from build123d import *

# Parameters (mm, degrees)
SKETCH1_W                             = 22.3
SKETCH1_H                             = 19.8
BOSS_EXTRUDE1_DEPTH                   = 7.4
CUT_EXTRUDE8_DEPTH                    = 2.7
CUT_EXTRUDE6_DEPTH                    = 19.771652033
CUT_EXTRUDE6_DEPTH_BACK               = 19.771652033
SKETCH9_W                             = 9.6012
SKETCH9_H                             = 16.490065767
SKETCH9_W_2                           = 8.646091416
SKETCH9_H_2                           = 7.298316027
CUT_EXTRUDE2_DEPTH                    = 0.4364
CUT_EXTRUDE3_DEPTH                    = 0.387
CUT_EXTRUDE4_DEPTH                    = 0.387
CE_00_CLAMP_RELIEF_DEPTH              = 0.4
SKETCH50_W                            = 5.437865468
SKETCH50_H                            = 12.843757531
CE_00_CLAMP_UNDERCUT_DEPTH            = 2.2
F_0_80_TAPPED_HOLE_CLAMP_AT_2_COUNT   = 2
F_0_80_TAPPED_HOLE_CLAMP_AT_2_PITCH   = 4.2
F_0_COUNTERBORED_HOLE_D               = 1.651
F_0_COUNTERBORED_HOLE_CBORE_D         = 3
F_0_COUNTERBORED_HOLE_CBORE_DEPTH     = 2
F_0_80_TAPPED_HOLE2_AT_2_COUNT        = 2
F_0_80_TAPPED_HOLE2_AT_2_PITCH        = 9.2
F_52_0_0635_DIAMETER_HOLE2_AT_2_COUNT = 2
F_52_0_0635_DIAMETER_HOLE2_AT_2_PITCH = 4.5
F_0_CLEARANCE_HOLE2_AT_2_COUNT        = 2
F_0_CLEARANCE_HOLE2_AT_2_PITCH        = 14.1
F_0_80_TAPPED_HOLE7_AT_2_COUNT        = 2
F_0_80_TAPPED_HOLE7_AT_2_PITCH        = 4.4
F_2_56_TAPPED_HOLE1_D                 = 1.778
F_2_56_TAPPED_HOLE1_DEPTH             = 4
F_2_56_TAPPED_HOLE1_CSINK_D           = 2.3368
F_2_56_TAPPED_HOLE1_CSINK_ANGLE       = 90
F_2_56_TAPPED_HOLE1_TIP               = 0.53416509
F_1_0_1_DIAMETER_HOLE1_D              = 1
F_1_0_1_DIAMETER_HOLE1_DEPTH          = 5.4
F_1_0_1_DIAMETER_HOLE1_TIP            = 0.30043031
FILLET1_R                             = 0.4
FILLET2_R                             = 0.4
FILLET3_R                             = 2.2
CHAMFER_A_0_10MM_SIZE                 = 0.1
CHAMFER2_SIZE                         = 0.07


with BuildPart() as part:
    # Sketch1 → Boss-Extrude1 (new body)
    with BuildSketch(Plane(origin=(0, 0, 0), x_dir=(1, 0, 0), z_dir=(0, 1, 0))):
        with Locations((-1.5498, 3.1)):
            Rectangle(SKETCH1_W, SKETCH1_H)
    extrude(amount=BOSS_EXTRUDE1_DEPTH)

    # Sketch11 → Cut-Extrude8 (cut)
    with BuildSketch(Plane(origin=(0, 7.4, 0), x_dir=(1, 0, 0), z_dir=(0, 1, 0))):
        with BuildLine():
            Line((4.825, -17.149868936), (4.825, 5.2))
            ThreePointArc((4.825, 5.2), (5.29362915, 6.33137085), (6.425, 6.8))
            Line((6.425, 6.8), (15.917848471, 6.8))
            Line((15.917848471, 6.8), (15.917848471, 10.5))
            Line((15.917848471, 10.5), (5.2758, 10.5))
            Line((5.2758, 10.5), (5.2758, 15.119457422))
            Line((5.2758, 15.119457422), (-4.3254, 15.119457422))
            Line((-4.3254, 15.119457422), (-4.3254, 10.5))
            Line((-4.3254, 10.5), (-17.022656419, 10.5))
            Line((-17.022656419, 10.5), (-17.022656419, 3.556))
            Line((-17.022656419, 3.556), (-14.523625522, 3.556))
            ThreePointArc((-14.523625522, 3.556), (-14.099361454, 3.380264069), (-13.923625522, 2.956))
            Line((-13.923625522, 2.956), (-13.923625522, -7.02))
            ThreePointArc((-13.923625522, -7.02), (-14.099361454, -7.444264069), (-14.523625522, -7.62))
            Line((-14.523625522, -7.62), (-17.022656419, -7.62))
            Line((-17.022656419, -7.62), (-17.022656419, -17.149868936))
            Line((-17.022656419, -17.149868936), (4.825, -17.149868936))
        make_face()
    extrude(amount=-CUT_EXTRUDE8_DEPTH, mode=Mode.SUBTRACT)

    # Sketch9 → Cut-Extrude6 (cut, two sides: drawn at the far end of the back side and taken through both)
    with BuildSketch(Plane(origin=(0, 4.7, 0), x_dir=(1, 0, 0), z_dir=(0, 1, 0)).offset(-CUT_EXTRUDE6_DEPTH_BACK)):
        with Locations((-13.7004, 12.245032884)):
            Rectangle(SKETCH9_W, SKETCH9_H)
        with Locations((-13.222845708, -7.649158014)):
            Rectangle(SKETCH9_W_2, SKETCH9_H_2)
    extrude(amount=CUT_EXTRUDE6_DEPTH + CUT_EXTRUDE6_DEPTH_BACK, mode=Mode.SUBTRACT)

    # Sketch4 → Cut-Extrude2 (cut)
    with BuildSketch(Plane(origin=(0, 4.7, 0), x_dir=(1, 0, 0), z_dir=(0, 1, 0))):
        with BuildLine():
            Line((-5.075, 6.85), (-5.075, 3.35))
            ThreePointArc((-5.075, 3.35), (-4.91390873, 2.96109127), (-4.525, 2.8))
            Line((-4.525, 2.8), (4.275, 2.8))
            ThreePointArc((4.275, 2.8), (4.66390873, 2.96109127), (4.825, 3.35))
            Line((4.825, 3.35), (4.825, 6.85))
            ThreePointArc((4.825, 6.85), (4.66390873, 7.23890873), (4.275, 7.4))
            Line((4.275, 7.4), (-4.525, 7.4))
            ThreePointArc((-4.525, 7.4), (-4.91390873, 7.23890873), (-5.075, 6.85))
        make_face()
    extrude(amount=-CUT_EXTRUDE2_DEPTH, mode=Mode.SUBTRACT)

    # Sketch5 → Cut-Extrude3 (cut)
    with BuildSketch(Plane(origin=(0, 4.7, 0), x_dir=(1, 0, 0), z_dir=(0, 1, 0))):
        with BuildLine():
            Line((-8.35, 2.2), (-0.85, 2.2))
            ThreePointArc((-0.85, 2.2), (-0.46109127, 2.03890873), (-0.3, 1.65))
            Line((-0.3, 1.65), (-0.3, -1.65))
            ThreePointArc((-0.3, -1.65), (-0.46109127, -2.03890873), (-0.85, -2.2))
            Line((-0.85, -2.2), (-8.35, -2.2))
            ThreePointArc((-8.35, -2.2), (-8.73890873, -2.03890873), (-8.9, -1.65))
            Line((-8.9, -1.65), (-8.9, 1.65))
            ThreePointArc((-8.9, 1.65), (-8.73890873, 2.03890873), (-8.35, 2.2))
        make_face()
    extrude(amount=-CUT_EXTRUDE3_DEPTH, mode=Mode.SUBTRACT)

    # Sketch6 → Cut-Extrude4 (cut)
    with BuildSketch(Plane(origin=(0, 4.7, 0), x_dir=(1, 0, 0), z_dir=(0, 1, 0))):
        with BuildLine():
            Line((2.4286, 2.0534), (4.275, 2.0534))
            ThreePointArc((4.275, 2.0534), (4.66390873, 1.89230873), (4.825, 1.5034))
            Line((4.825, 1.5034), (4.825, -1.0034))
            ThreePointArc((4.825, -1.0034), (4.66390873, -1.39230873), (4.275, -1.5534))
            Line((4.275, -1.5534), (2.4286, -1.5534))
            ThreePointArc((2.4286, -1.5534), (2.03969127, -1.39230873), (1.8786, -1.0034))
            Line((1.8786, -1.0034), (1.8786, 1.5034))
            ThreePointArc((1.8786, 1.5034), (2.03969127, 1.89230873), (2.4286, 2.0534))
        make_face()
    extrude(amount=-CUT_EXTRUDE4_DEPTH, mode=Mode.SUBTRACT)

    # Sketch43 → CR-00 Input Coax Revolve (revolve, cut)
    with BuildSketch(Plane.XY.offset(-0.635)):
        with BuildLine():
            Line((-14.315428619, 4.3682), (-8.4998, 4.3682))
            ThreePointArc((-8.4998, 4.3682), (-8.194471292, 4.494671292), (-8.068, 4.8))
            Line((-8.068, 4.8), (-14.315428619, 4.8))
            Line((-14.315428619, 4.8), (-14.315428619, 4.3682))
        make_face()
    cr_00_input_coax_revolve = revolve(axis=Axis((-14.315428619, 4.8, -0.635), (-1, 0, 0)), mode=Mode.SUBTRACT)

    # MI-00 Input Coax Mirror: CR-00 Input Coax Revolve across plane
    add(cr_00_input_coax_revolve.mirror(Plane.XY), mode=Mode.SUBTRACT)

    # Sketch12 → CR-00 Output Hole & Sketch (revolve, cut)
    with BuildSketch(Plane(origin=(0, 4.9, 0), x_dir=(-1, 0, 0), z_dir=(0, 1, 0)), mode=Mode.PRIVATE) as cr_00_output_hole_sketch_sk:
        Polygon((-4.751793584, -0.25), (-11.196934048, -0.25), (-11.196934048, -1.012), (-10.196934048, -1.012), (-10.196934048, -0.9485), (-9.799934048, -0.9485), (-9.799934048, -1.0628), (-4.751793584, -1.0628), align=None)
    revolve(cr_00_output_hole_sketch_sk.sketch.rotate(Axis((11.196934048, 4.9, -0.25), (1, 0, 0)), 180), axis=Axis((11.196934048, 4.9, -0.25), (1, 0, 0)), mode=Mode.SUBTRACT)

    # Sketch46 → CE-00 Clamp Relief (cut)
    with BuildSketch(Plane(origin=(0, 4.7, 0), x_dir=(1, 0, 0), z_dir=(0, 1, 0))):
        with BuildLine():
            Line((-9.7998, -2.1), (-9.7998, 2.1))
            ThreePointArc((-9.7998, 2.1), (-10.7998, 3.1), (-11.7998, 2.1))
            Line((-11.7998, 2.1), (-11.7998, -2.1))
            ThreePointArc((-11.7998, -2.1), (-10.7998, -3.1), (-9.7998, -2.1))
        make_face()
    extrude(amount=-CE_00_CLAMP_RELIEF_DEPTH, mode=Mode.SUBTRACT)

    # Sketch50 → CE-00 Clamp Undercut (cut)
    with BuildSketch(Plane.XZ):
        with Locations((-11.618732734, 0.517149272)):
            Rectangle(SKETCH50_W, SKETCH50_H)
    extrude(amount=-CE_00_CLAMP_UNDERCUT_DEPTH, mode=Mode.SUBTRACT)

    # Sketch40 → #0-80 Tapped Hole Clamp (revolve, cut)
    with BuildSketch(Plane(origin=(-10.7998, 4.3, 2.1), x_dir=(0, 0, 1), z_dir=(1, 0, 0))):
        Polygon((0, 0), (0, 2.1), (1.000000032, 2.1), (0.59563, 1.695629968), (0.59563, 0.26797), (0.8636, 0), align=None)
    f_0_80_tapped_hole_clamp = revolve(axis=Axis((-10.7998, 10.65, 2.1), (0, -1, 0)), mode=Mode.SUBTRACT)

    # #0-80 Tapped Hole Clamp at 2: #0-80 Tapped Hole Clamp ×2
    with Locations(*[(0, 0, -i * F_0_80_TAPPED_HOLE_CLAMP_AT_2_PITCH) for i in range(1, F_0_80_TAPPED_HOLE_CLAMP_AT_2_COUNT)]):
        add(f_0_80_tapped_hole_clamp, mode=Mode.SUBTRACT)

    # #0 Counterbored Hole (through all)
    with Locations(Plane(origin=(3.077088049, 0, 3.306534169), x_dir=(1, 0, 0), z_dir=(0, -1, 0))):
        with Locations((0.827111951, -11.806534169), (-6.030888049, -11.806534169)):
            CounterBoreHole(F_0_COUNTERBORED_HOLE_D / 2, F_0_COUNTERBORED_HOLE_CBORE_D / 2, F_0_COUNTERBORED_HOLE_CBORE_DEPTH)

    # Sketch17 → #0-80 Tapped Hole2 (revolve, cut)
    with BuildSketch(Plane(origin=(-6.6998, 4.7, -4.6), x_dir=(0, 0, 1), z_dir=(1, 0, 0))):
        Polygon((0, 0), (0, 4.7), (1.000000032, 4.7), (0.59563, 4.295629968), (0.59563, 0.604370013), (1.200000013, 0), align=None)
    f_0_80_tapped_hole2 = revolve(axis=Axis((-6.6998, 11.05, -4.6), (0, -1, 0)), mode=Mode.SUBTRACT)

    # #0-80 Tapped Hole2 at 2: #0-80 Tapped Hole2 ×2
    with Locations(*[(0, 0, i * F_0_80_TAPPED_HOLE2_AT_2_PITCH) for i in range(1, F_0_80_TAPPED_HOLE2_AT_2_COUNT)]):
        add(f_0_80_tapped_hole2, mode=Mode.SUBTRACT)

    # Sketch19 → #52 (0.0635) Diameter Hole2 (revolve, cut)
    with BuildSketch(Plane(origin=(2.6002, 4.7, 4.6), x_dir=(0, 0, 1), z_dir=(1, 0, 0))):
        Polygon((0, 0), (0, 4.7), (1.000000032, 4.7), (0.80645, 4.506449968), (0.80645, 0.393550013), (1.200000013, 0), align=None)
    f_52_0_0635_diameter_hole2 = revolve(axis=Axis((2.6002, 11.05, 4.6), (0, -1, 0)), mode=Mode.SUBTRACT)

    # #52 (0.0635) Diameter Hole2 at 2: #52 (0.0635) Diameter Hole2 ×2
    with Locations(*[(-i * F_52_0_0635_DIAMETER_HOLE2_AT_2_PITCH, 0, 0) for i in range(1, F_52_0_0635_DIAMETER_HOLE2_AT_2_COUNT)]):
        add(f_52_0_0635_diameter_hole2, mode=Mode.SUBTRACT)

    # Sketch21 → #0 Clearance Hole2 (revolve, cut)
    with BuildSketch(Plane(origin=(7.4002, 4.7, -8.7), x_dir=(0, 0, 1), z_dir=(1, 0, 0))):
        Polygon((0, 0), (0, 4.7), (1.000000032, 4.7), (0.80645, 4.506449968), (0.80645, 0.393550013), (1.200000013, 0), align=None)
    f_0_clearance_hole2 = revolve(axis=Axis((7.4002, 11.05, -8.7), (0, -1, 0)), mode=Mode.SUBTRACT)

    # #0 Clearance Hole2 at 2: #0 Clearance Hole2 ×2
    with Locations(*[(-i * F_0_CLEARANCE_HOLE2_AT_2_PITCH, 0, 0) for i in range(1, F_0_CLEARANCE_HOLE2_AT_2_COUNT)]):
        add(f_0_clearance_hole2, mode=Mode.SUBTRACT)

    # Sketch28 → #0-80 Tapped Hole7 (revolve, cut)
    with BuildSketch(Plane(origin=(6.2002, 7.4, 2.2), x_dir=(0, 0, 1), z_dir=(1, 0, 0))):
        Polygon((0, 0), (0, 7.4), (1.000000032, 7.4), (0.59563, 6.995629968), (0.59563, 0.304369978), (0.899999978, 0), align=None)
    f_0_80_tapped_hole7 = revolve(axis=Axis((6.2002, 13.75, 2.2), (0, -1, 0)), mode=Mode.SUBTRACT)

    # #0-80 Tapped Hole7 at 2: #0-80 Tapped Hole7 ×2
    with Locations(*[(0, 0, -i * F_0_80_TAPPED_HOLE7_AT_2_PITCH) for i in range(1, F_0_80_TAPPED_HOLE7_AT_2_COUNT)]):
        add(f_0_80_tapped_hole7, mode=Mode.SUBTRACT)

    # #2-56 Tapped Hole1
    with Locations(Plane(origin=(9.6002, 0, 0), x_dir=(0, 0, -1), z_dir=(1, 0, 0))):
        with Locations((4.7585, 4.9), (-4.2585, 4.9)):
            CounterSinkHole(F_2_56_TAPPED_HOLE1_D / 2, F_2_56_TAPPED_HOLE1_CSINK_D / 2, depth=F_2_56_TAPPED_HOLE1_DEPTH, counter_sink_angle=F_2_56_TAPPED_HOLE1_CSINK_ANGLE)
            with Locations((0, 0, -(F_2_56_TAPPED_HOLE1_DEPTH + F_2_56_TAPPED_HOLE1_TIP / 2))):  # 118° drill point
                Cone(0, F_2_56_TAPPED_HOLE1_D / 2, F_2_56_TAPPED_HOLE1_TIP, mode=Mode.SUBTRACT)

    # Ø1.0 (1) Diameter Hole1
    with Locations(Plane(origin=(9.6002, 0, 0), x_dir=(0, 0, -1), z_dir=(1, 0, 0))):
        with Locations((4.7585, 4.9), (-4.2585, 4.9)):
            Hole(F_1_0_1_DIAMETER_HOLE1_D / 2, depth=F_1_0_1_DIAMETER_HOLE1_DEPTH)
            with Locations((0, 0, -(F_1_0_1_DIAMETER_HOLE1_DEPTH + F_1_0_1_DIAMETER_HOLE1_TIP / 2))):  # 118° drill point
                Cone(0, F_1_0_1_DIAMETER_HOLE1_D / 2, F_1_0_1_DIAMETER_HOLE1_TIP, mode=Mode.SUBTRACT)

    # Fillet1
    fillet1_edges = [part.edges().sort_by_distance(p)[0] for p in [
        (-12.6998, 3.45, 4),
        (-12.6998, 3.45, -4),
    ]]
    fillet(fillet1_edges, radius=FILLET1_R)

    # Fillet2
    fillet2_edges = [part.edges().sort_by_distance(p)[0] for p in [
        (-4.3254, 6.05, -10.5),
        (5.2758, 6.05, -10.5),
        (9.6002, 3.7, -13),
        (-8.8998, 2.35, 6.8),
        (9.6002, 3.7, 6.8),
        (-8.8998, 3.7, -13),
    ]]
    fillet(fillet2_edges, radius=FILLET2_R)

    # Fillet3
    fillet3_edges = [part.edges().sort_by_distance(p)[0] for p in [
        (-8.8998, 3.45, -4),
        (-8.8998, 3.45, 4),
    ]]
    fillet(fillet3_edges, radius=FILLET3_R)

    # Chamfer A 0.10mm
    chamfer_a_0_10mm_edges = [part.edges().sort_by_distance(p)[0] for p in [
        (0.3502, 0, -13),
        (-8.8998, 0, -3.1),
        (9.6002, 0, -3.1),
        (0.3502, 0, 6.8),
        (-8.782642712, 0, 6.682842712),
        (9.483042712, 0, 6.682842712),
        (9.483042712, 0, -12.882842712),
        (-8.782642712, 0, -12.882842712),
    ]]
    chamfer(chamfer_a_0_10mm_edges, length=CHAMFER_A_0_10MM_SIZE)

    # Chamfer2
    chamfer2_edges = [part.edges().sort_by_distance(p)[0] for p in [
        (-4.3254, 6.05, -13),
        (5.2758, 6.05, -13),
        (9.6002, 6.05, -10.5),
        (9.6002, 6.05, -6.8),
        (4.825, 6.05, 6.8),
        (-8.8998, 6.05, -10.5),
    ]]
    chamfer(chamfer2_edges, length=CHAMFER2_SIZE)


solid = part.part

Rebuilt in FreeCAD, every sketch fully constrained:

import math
import FreeCAD as App
import Part
import Sketcher
from FreeCAD import Vector
Q = App.Units.Quantity


def edges_at(feature, points):
    """Names of the edges that pass closest to the given points."""
    edges = feature.Shape.Edges
    near = lambda p: min(range(len(edges)), key=lambda i: edges[i].distToShape(Part.Vertex(*p))[0])
    return sorted({f"Edge{near(p) + 1}" for p in points})


def add_polygon(sketch, points):
    """Adds a closed chain of lines whose ends are joined by coincident constraints."""
    first, n = sketch.GeometryCount, len(points)
    for a, b in zip(points, points[1:] + points[:1]):
        sketch.addGeometry(Part.LineSegment(App.Vector(*a, 0), App.Vector(*b, 0)), False)
    for i in range(n):
        sketch.addConstraint(Sketcher.Constraint("Coincident", first + i, 2, first + (i + 1) % n, 1))

doc = App.newDocument("Part")
body = doc.addObject("PartDesign::Body", "Body")

sketch1 = doc.addObject("Sketcher::SketchObject", "Sketch")
body.addObject(sketch1)
sketch1.AttachmentSupport = (doc.XZ_Plane, [""])
sketch1.MapMode = "FlatFace"
add_polygon(sketch1, [(-12.6998, -13), (-12.6998, 6.8), (9.6002, 6.8), (9.6002, -13)])
sketch1.addConstraint(Sketcher.Constraint("Vertical", 0))
sketch1.addConstraint(Sketcher.Constraint("Horizontal", 1))
sketch1.addConstraint(Sketcher.Constraint("Vertical", 2))
sketch1.addConstraint(Sketcher.Constraint("Horizontal", 3))
sketch1.addConstraint(Sketcher.Constraint("DistanceX", 1, 1, 1, 2, Q("22.3 mm")))
sketch1.addConstraint(Sketcher.Constraint("DistanceY", 0, 1, 0, 2, Q("19.8 mm")))
sketch1.addConstraint(Sketcher.Constraint("DistanceY", 2, 2, -1, 1, Q("13 mm")))
sketch1.addConstraint(Sketcher.Constraint("DistanceX", 0, 2, -1, 1, Q("12.6998 mm")))
pad1 = doc.addObject("PartDesign::Pad", "Pad")
body.addObject(pad1)
pad1.Profile = sketch1
pad1.Length = 7.4
pad1.Reversed = True

sketch2 = doc.addObject("Sketcher::SketchObject", "Sketch001")
body.addObject(sketch2)
sketch2.AttachmentSupport = (doc.XZ_Plane, [""])
sketch2.MapMode = "FlatFace"
sketch2.AttachmentOffset = App.Placement(Vector(0, 0, -7.4), App.Rotation())
sketch2.addGeometry(Part.LineSegment(Vector(4.825, 17.149869, 0), Vector(4.825, -5.2, 0)), False)
sketch2.addGeometry(Part.ArcOfCircle(Part.Circle(Vector(6.425, -5.2, 0), Vector(0, 0, 1), 1.6), math.radians(180), math.radians(270)), False)
sketch2.addGeometry(Part.LineSegment(Vector(6.425, -6.8, 0), Vector(15.917848, -6.8, 0)), False)
sketch2.addGeometry(Part.LineSegment(Vector(15.917848, -6.8, 0), Vector(15.917848, -10.5, 0)), False)
sketch2.addGeometry(Part.LineSegment(Vector(15.917848, -10.5, 0), Vector(5.2758, -10.5, 0)), False)
sketch2.addGeometry(Part.LineSegment(Vector(5.2758, -10.5, 0), Vector(5.2758, -15.119457, 0)), False)
sketch2.addGeometry(Part.LineSegment(Vector(5.2758, -15.119457, 0), Vector(-4.3254, -15.119457, 0)), False)
sketch2.addGeometry(Part.LineSegment(Vector(-4.3254, -15.119457, 0), Vector(-4.3254, -10.5, 0)), False)
sketch2.addGeometry(Part.LineSegment(Vector(-4.3254, -10.5, 0), Vector(-17.022656, -10.5, 0)), False)
sketch2.addGeometry(Part.LineSegment(Vector(-17.022656, -10.5, 0), Vector(-17.022656, -3.556, 0)), False)
sketch2.addGeometry(Part.LineSegment(Vector(-17.022656, -3.556, 0), Vector(-14.523626, -3.556, 0)), False)
sketch2.addGeometry(Part.ArcOfCircle(Part.Circle(Vector(-14.523626, -2.956, 0), Vector(0, 0, 1), 0.6), math.radians(-90), math.radians(0)), False)
sketch2.addGeometry(Part.LineSegment(Vector(-13.923626, -2.956, 0), Vector(-13.923626, 7.02, 0)), False)
sketch2.addGeometry(Part.ArcOfCircle(Part.Circle(Vector(-14.523626, 7.02, 0), Vector(0, 0, 1), 0.6), math.radians(0), math.radians(90)), False)
sketch2.addGeometry(Part.LineSegment(Vector(-14.523626, 7.62, 0), Vector(-17.022656, 7.62, 0)), False)
sketch2.addGeometry(Part.LineSegment(Vector(-17.022656, 7.62, 0), Vector(-17.022656, 17.149869, 0)), False)
sketch2.addGeometry(Part.LineSegment(Vector(-17.022656, 17.149869, 0), Vector(4.825, 17.149869, 0)), False)
sketch2.addConstraint(Sketcher.Constraint("Tangent", 0, 2, 1, 1))
sketch2.addConstraint(Sketcher.Constraint("Tangent", 1, 2, 2, 1))
sketch2.addConstraint(Sketcher.Constraint("Coincident", 2, 2, 3, 1))
sketch2.addConstraint(Sketcher.Constraint("Coincident", 3, 2, 4, 1))
sketch2.addConstraint(Sketcher.Constraint("Coincident", 4, 2, 5, 1))
sketch2.addConstraint(Sketcher.Constraint("Coincident", 5, 2, 6, 1))
sketch2.addConstraint(Sketcher.Constraint("Coincident", 6, 2, 7, 1))
sketch2.addConstraint(Sketcher.Constraint("Coincident", 7, 2, 8, 1))
sketch2.addConstraint(Sketcher.Constraint("Coincident", 8, 2, 9, 1))
sketch2.addConstraint(Sketcher.Constraint("Coincident", 9, 2, 10, 1))
sketch2.addConstraint(Sketcher.Constraint("Tangent", 10, 2, 11, 1))
sketch2.addConstraint(Sketcher.Constraint("Tangent", 11, 2, 12, 1))
sketch2.addConstraint(Sketcher.Constraint("Tangent", 12, 2, 13, 1))
sketch2.addConstraint(Sketcher.Constraint("Tangent", 13, 2, 14, 1))
sketch2.addConstraint(Sketcher.Constraint("Coincident", 14, 2, 15, 1))
sketch2.addConstraint(Sketcher.Constraint("Coincident", 15, 2, 16, 1))
sketch2.addConstraint(Sketcher.Constraint("Coincident", 16, 2, 0, 1))
sketch2.addConstraint(Sketcher.Constraint("Vertical", 0))
sketch2.addConstraint(Sketcher.Constraint("Horizontal", 2))
sketch2.addConstraint(Sketcher.Constraint("Vertical", 3))
sketch2.addConstraint(Sketcher.Constraint("Horizontal", 4))
sketch2.addConstraint(Sketcher.Constraint("Vertical", 5))
sketch2.addConstraint(Sketcher.Constraint("Horizontal", 6))
sketch2.addConstraint(Sketcher.Constraint("Vertical", 7))
sketch2.addConstraint(Sketcher.Constraint("Horizontal", 8))
sketch2.addConstraint(Sketcher.Constraint("Vertical", 9))
sketch2.addConstraint(Sketcher.Constraint("Horizontal", 10))
sketch2.addConstraint(Sketcher.Constraint("Vertical", 12))
sketch2.addConstraint(Sketcher.Constraint("Horizontal", 14))
sketch2.addConstraint(Sketcher.Constraint("Vertical", 15))
sketch2.addConstraint(Sketcher.Constraint("Horizontal", 16))
sketch2.addConstraint(Sketcher.Constraint("Equal", 11, 13))
sketch2.addConstraint(Sketcher.Constraint("Horizontal", 4, 2, 7, 2))
sketch2.addConstraint(Sketcher.Constraint("Vertical", 9, 2, 14, 2))
sketch2.addConstraint(Sketcher.Constraint("Radius", 1, Q("1.6 mm")))
sketch2.addConstraint(Sketcher.Constraint("Radius", 11, Q("0.6 mm")))
sketch2.addConstraint(Sketcher.Constraint("DistanceY", 3, 2, 3, 1, Q("3.7 mm")))
sketch2.addConstraint(Sketcher.Constraint("DistanceY", 1, 3, -1, 1, Q("5.2 mm")))
sketch2.addConstraint(Sketcher.Constraint("DistanceY", 9, 1, 9, 2, Q("6.944 mm")))
sketch2.addConstraint(Sketcher.Constraint("DistanceY", 12, 1, 12, 2, Q("9.976 mm")))
sketch2.addConstraint(Sketcher.Constraint("DistanceX", 6, 2, 6, 1, Q("9.6012 mm")))
sketch2.addConstraint(Sketcher.Constraint("DistanceX", -1, 1, 1, 3, Q("6.425 mm")))
sketch2.addConstraint(Sketcher.Constraint("DistanceX", 2, 1, 2, 2, Q("9.492848 mm")))
sketch2.addConstraint(Sketcher.Constraint("DistanceX", 4, 2, 4, 1, Q("10.642048 mm")))
sketch2.addConstraint(Sketcher.Constraint("DistanceX", 10, 1, 10, 2, Q("2.499031 mm")))
sketch2.addConstraint(Sketcher.Constraint("DistanceY", 0, 2, 0, 1, Q("22.349869 mm")))
sketch2.addConstraint(Sketcher.Constraint("DistanceX", 8, 2, 8, 1, Q("12.697256 mm")))
sketch2.addConstraint(Sketcher.Constraint("DistanceY", 5, 2, 5, 1, Q("4.619457 mm")))
pocket1 = doc.addObject("PartDesign::Pocket", "Pocket")
body.addObject(pocket1)
pocket1.Profile = sketch2
pocket1.Length = 2.7
pocket1.Reversed = True

sketch3 = doc.addObject("Sketcher::SketchObject", "Sketch002")
body.addObject(sketch3)
sketch3.AttachmentSupport = (doc.XZ_Plane, [""])
sketch3.MapMode = "FlatFace"
sketch3.AttachmentOffset = App.Placement(Vector(0, 0, -4.7), App.Rotation())
add_polygon(sketch3, [(-18.501, -20.490066), (-18.501, -4), (-8.8998, -4), (-8.8998, -20.490066)])
add_polygon(sketch3, [(-17.545891, 4), (-17.545891, 11.298316), (-8.8998, 11.298316), (-8.8998, 4)])
sketch3.addConstraint(Sketcher.Constraint("Vertical", 0))
sketch3.addConstraint(Sketcher.Constraint("Horizontal", 1))
sketch3.addConstraint(Sketcher.Constraint("Vertical", 2))
sketch3.addConstraint(Sketcher.Constraint("Horizontal", 3))
sketch3.addConstraint(Sketcher.Constraint("Vertical", 4))
sketch3.addConstraint(Sketcher.Constraint("Horizontal", 5))
sketch3.addConstraint(Sketcher.Constraint("Vertical", 6))
sketch3.addConstraint(Sketcher.Constraint("Horizontal", 7))
sketch3.addConstraint(Sketcher.Constraint("Symmetric", 1, 2, 6, 2, -1))
sketch3.addConstraint(Sketcher.Constraint("DistanceY", 0, 2, -1, 1, Q("4 mm")))
sketch3.addConstraint(Sketcher.Constraint("DistanceX", 1, 1, 1, 2, Q("9.6012 mm")))
sketch3.addConstraint(Sketcher.Constraint("DistanceX", 0, 2, -1, 1, Q("18.501 mm")))
sketch3.addConstraint(Sketcher.Constraint("DistanceX", 5, 1, 5, 2, Q("8.646091 mm")))
sketch3.addConstraint(Sketcher.Constraint("DistanceY", 0, 1, 0, 2, Q("16.490066 mm")))
sketch3.addConstraint(Sketcher.Constraint("DistanceY", 4, 1, 4, 2, Q("7.298316 mm")))
pocket2 = doc.addObject("PartDesign::Pocket", "Pocket001")
body.addObject(pocket2)
pocket2.Profile = sketch3
pocket2.Type = "ThroughAll"
pocket2.Midplane = True

sketch4 = doc.addObject("Sketcher::SketchObject", "Sketch003")
body.addObject(sketch4)
sketch4.AttachmentSupport = (doc.XZ_Plane, [""])
sketch4.MapMode = "FlatFace"
sketch4.AttachmentOffset = App.Placement(Vector(0, 0, -4.7), App.Rotation())
sketch4.addGeometry(Part.LineSegment(Vector(-5.075, -6.85, 0), Vector(-5.075, -3.35, 0)), False)
sketch4.addGeometry(Part.ArcOfCircle(Part.Circle(Vector(-4.525, -3.35, 0), Vector(0, 0, 1), 0.55), math.radians(90), math.radians(180)), False)
sketch4.addGeometry(Part.LineSegment(Vector(-4.525, -2.8, 0), Vector(4.275, -2.8, 0)), False)
sketch4.addGeometry(Part.ArcOfCircle(Part.Circle(Vector(4.275, -3.35, 0), Vector(0, 0, 1), 0.55), math.radians(0), math.radians(90)), False)
sketch4.addGeometry(Part.LineSegment(Vector(4.825, -3.35, 0), Vector(4.825, -6.85, 0)), False)
sketch4.addGeometry(Part.ArcOfCircle(Part.Circle(Vector(4.275, -6.85, 0), Vector(0, 0, 1), 0.55), math.radians(-90), math.radians(0)), False)
sketch4.addGeometry(Part.LineSegment(Vector(4.275, -7.4, 0), Vector(-4.525, -7.4, 0)), False)
sketch4.addGeometry(Part.ArcOfCircle(Part.Circle(Vector(-4.525, -6.85, 0), Vector(0, 0, 1), 0.55), math.radians(180), math.radians(270)), False)
sketch4.addConstraint(Sketcher.Constraint("Tangent", 0, 2, 1, 2))
sketch4.addConstraint(Sketcher.Constraint("Tangent", 1, 1, 2, 1))
sketch4.addConstraint(Sketcher.Constraint("Tangent", 2, 2, 3, 2))
sketch4.addConstraint(Sketcher.Constraint("Tangent", 3, 1, 4, 1))
sketch4.addConstraint(Sketcher.Constraint("Tangent", 4, 2, 5, 2))
sketch4.addConstraint(Sketcher.Constraint("Tangent", 5, 1, 6, 1))
sketch4.addConstraint(Sketcher.Constraint("Tangent", 6, 2, 7, 2))
sketch4.addConstraint(Sketcher.Constraint("Tangent", 7, 1, 0, 1))
sketch4.addConstraint(Sketcher.Constraint("Vertical", 0))
sketch4.addConstraint(Sketcher.Constraint("Horizontal", 2))
sketch4.addConstraint(Sketcher.Constraint("Vertical", 4))
sketch4.addConstraint(Sketcher.Constraint("Horizontal", 6))
sketch4.addConstraint(Sketcher.Constraint("Equal", 1, 3))
sketch4.addConstraint(Sketcher.Constraint("Equal", 3, 5))
sketch4.addConstraint(Sketcher.Constraint("Equal", 5, 7))
sketch4.addConstraint(Sketcher.Constraint("Radius", 1, Q("0.55 mm")))
sketch4.addConstraint(Sketcher.Constraint("DistanceX", 2, 1, 2, 2, Q("8.8 mm")))
sketch4.addConstraint(Sketcher.Constraint("DistanceY", 0, 1, 0, 2, Q("3.5 mm")))
sketch4.addConstraint(Sketcher.Constraint("DistanceY", 1, 1, -1, 1, Q("2.8 mm")))
sketch4.addConstraint(Sketcher.Constraint("DistanceX", 1, 3, -1, 1, Q("4.525 mm")))
pocket3 = doc.addObject("PartDesign::Pocket", "Pocket002")
body.addObject(pocket3)
pocket3.Profile = sketch4
pocket3.Length = 0.4364
pocket3.Reversed = True

sketch5 = doc.addObject("Sketcher::SketchObject", "Sketch004")
body.addObject(sketch5)
sketch5.AttachmentSupport = (doc.XZ_Plane, [""])
sketch5.MapMode = "FlatFace"
sketch5.AttachmentOffset = App.Placement(Vector(0, 0, -4.7), App.Rotation())
sketch5.addGeometry(Part.LineSegment(Vector(-0.85, -2.2, 0), Vector(-8.35, -2.2, 0)), False)
sketch5.addGeometry(Part.ArcOfCircle(Part.Circle(Vector(-8.35, -1.65, 0), Vector(0, 0, 1), 0.55), math.radians(180), math.radians(270)), False)
sketch5.addGeometry(Part.LineSegment(Vector(-8.9, -1.65, 0), Vector(-8.9, 1.65, 0)), False)
sketch5.addGeometry(Part.ArcOfCircle(Part.Circle(Vector(-8.35, 1.65, 0), Vector(0, 0, 1), 0.55), math.radians(90), math.radians(180)), False)
sketch5.addGeometry(Part.LineSegment(Vector(-8.35, 2.2, 0), Vector(-0.85, 2.2, 0)), False)
sketch5.addGeometry(Part.ArcOfCircle(Part.Circle(Vector(-0.85, 1.65, 0), Vector(0, 0, 1), 0.55), math.radians(0), math.radians(90)), False)
sketch5.addGeometry(Part.LineSegment(Vector(-0.3, 1.65, 0), Vector(-0.3, -1.65, 0)), False)
sketch5.addGeometry(Part.ArcOfCircle(Part.Circle(Vector(-0.85, -1.65, 0), Vector(0, 0, 1), 0.55), math.radians(-90), math.radians(0)), False)
sketch5.addConstraint(Sketcher.Constraint("Tangent", 0, 2, 1, 2))
sketch5.addConstraint(Sketcher.Constraint("Tangent", 1, 1, 2, 1))
sketch5.addConstraint(Sketcher.Constraint("Tangent", 2, 2, 3, 2))
sketch5.addConstraint(Sketcher.Constraint("Tangent", 3, 1, 4, 1))
sketch5.addConstraint(Sketcher.Constraint("Tangent", 4, 2, 5, 2))
sketch5.addConstraint(Sketcher.Constraint("Tangent", 5, 1, 6, 1))
sketch5.addConstraint(Sketcher.Constraint("Tangent", 6, 2, 7, 2))
sketch5.addConstraint(Sketcher.Constraint("Tangent", 7, 1, 0, 1))
sketch5.addConstraint(Sketcher.Constraint("Horizontal", 0))
sketch5.addConstraint(Sketcher.Constraint("Vertical", 2))
sketch5.addConstraint(Sketcher.Constraint("Horizontal", 4))
sketch5.addConstraint(Sketcher.Constraint("Vertical", 6))
sketch5.addConstraint(Sketcher.Constraint("Equal", 1, 3))
sketch5.addConstraint(Sketcher.Constraint("Equal", 3, 5))
sketch5.addConstraint(Sketcher.Constraint("Equal", 5, 7))
sketch5.addConstraint(Sketcher.Constraint("Radius", 1, Q("0.55 mm")))
sketch5.addConstraint(Sketcher.Constraint("DistanceX", 0, 2, 0, 1, Q("7.5 mm")))
sketch5.addConstraint(Sketcher.Constraint("DistanceY", 2, 1, 2, 2, Q("3.3 mm")))
sketch5.addConstraint(Sketcher.Constraint("DistanceY", 0, 2, -1, 1, Q("2.2 mm")))
sketch5.addConstraint(Sketcher.Constraint("DistanceX", 1, 1, -1, 1, Q("8.9 mm")))
pocket4 = doc.addObject("PartDesign::Pocket", "Pocket003")
body.addObject(pocket4)
pocket4.Profile = sketch5
pocket4.Length = 0.387
pocket4.Reversed = True

sketch6 = doc.addObject("Sketcher::SketchObject", "Sketch005")
body.addObject(sketch6)
sketch6.AttachmentSupport = (doc.XZ_Plane, [""])
sketch6.MapMode = "FlatFace"
sketch6.AttachmentOffset = App.Placement(Vector(0, 0, -4.7), App.Rotation())
sketch6.addGeometry(Part.LineSegment(Vector(4.275, -2.0534, 0), Vector(2.4286, -2.0534, 0)), False)
sketch6.addGeometry(Part.ArcOfCircle(Part.Circle(Vector(2.4286, -1.5034, 0), Vector(0, 0, 1), 0.55), math.radians(180), math.radians(270)), False)
sketch6.addGeometry(Part.LineSegment(Vector(1.8786, -1.5034, 0), Vector(1.8786, 1.0034, 0)), False)
sketch6.addGeometry(Part.ArcOfCircle(Part.Circle(Vector(2.4286, 1.0034, 0), Vector(0, 0, 1), 0.55), math.radians(90), math.radians(180)), False)
sketch6.addGeometry(Part.LineSegment(Vector(2.4286, 1.5534, 0), Vector(4.275, 1.5534, 0)), False)
sketch6.addGeometry(Part.ArcOfCircle(Part.Circle(Vector(4.275, 1.0034, 0), Vector(0, 0, 1), 0.55), math.radians(0), math.radians(90)), False)
sketch6.addGeometry(Part.LineSegment(Vector(4.825, 1.0034, 0), Vector(4.825, -1.5034, 0)), False)
sketch6.addGeometry(Part.ArcOfCircle(Part.Circle(Vector(4.275, -1.5034, 0), Vector(0, 0, 1), 0.55), math.radians(-90), math.radians(0)), False)
sketch6.addConstraint(Sketcher.Constraint("Tangent", 0, 2, 1, 2))
sketch6.addConstraint(Sketcher.Constraint("Tangent", 1, 1, 2, 1))
sketch6.addConstraint(Sketcher.Constraint("Tangent", 2, 2, 3, 2))
sketch6.addConstraint(Sketcher.Constraint("Tangent", 3, 1, 4, 1))
sketch6.addConstraint(Sketcher.Constraint("Tangent", 4, 2, 5, 2))
sketch6.addConstraint(Sketcher.Constraint("Tangent", 5, 1, 6, 1))
sketch6.addConstraint(Sketcher.Constraint("Tangent", 6, 2, 7, 2))
sketch6.addConstraint(Sketcher.Constraint("Tangent", 7, 1, 0, 1))
sketch6.addConstraint(Sketcher.Constraint("Horizontal", 0))
sketch6.addConstraint(Sketcher.Constraint("Vertical", 2))
sketch6.addConstraint(Sketcher.Constraint("Horizontal", 4))
sketch6.addConstraint(Sketcher.Constraint("Vertical", 6))
sketch6.addConstraint(Sketcher.Constraint("Equal", 1, 3))
sketch6.addConstraint(Sketcher.Constraint("Equal", 3, 5))
sketch6.addConstraint(Sketcher.Constraint("Equal", 5, 7))
sketch6.addConstraint(Sketcher.Constraint("Radius", 1, Q("0.55 mm")))
sketch6.addConstraint(Sketcher.Constraint("DistanceX", 0, 2, 0, 1, Q("1.8464 mm")))
sketch6.addConstraint(Sketcher.Constraint("DistanceY", 2, 1, 2, 2, Q("2.5068 mm")))
sketch6.addConstraint(Sketcher.Constraint("DistanceX", -1, 1, 5, 3, Q("4.275 mm")))
sketch6.addConstraint(Sketcher.Constraint("DistanceY", 1, 3, -1, 1, Q("1.5034 mm")))
pocket5 = doc.addObject("PartDesign::Pocket", "Pocket004")
body.addObject(pocket5)
pocket5.Profile = sketch6
pocket5.Length = 0.387
pocket5.Reversed = True

sketch7 = doc.addObject("Sketcher::SketchObject", "Sketch006")
body.addObject(sketch7)
sketch7.AttachmentSupport = (doc.XY_Plane, [""])
sketch7.MapMode = "FlatFace"
sketch7.AttachmentOffset = App.Placement(Vector(0, 0, -0.635), App.Rotation())
sketch7.addGeometry(Part.LineSegment(Vector(-14.315429, 4.3682, 0), Vector(-8.4998, 4.3682, 0)), False)
sketch7.addGeometry(Part.ArcOfCircle(Part.Circle(Vector(-8.4998, 4.8, 0), Vector(0, 0, 1), 0.4318), math.radians(-90), math.radians(0)), False)
sketch7.addGeometry(Part.LineSegment(Vector(-8.068, 4.8, 0), Vector(-14.315429, 4.8, 0)), False)
sketch7.addGeometry(Part.LineSegment(Vector(-14.315429, 4.8, 0), Vector(-14.315429, 4.3682, 0)), False)
sketch7.addGeometry(Part.LineSegment(Vector(-8.068, 4.8, 0), Vector(-14.315429, 4.8, 0)), True)
sketch7.addConstraint(Sketcher.Constraint("Tangent", 0, 2, 1, 1))
sketch7.addConstraint(Sketcher.Constraint("Coincident", 1, 2, 2, 1))
sketch7.addConstraint(Sketcher.Constraint("Coincident", 2, 2, 3, 1))
sketch7.addConstraint(Sketcher.Constraint("Coincident", 3, 2, 0, 1))
sketch7.addConstraint(Sketcher.Constraint("Horizontal", 0))
sketch7.addConstraint(Sketcher.Constraint("Horizontal", 2))
sketch7.addConstraint(Sketcher.Constraint("Vertical", 3))
sketch7.addConstraint(Sketcher.Constraint("Horizontal", 4))
sketch7.addConstraint(Sketcher.Constraint("Coincident", 4, 1, 1, 2))
sketch7.addConstraint(Sketcher.Constraint("Vertical", 3, 2, 4, 2))
sketch7.addConstraint(Sketcher.Constraint("DistanceY", -1, 1, 1, 3, Q("4.8 mm")))
sketch7.addConstraint(Sketcher.Constraint("DistanceY", -1, 1, 1, 2, Q("4.8 mm")))
sketch7.addConstraint(Sketcher.Constraint("Radius", 1, Q("0.4318 mm")))
sketch7.addConstraint(Sketcher.Constraint("DistanceX", 1, 2, -1, 1, Q("8.068 mm")))
sketch7.addConstraint(Sketcher.Constraint("DistanceX", 0, 1, 0, 2, Q("5.815629 mm")))
groove = doc.addObject("PartDesign::Groove", "Groove")
body.addObject(groove)
groove.Profile = sketch7
groove.ReferenceAxis = (sketch7, ["Axis0"])
groove.Angle = 360
doc.recompute()

mirrored = doc.addObject("PartDesign::Mirrored", "Mirrored")
body.addObject(mirrored)
mirrored.Originals = [groove]
mirrored.MirrorPlane = (doc.XY_Plane, [""])
body.Tip = mirrored

sketch8 = doc.addObject("Sketcher::SketchObject", "Sketch007")
body.addObject(sketch8)
sketch8.AttachmentSupport = (doc.XZ_Plane, [""])
sketch8.MapMode = "FlatFace"
sketch8.AttachmentOffset = App.Placement(Vector(0, 0, -4.9), App.Rotation())
add_polygon(sketch8, [(4.751794, -0.25), (11.196934, -0.25), (11.196934, -1.012), (10.196934, -1.012), (10.196934, -0.9485), (9.799934, -0.9485), (9.799934, -1.0628), (4.751794, -1.0628)])
sketch8.addGeometry(Part.LineSegment(Vector(4.751794, -0.25, 0), Vector(11.196934, -0.25, 0)), True)
sketch8.addConstraint(Sketcher.Constraint("Horizontal", 0))
sketch8.addConstraint(Sketcher.Constraint("Vertical", 1))
sketch8.addConstraint(Sketcher.Constraint("Horizontal", 2))
sketch8.addConstraint(Sketcher.Constraint("Vertical", 3))
sketch8.addConstraint(Sketcher.Constraint("Horizontal", 4))
sketch8.addConstraint(Sketcher.Constraint("Vertical", 5))
sketch8.addConstraint(Sketcher.Constraint("Horizontal", 6))
sketch8.addConstraint(Sketcher.Constraint("Vertical", 7))
sketch8.addConstraint(Sketcher.Constraint("Horizontal", 8))
sketch8.addConstraint(Sketcher.Constraint("Coincident", 8, 1, 7, 2))
sketch8.addConstraint(Sketcher.Constraint("Vertical", 1, 2, 8, 2))
sketch8.addConstraint(Sketcher.Constraint("DistanceX", 2, 2, 2, 1, Q("1 mm")))
sketch8.addConstraint(Sketcher.Constraint("DistanceX", 4, 2, 4, 1, Q("0.397 mm")))
sketch8.addConstraint(Sketcher.Constraint("DistanceY", 1, 2, 1, 1, Q("0.762 mm")))
sketch8.addConstraint(Sketcher.Constraint("DistanceY", 0, 2, -1, 1, Q("0.25 mm")))
sketch8.addConstraint(Sketcher.Constraint("DistanceY", 3, 1, 3, 2, Q("0.0635 mm")))
sketch8.addConstraint(Sketcher.Constraint("DistanceY", 5, 2, 5, 1, Q("0.1143 mm")))
sketch8.addConstraint(Sketcher.Constraint("DistanceX", 0, 1, 0, 2, Q("6.44514 mm")))
sketch8.addConstraint(Sketcher.Constraint("DistanceX", -1, 1, 0, 2, Q("11.196934 mm")))
groove2 = doc.addObject("PartDesign::Groove", "Groove001")
body.addObject(groove2)
groove2.Profile = sketch8
groove2.ReferenceAxis = (sketch8, ["Axis0"])
groove2.Angle = 360

sketch9 = doc.addObject("Sketcher::SketchObject", "Sketch008")
body.addObject(sketch9)
sketch9.AttachmentSupport = (doc.XZ_Plane, [""])
sketch9.MapMode = "FlatFace"
sketch9.AttachmentOffset = App.Placement(Vector(0, 0, -4.7), App.Rotation())
sketch9.addGeometry(Part.LineSegment(Vector(-9.7998, 2.1, 0), Vector(-9.7998, -2.1, 0)), False)
sketch9.addGeometry(Part.ArcOfCircle(Part.Circle(Vector(-10.7998, -2.1, 0), Vector(0, 0, 1), 1), math.radians(180), math.radians(360)), False)
sketch9.addGeometry(Part.LineSegment(Vector(-11.7998, -2.1, 0), Vector(-11.7998, 2.1, 0)), False)
sketch9.addGeometry(Part.ArcOfCircle(Part.Circle(Vector(-10.7998, 2.1, 0), Vector(0, 0, 1), 1), math.radians(0), math.radians(180)), False)
sketch9.addConstraint(Sketcher.Constraint("Tangent", 0, 2, 1, 2))
sketch9.addConstraint(Sketcher.Constraint("Tangent", 1, 1, 2, 1))
sketch9.addConstraint(Sketcher.Constraint("Tangent", 2, 2, 3, 2))
sketch9.addConstraint(Sketcher.Constraint("Tangent", 3, 1, 0, 1))
sketch9.addConstraint(Sketcher.Constraint("Vertical", 0))
sketch9.addConstraint(Sketcher.Constraint("Vertical", 2))
sketch9.addConstraint(Sketcher.Constraint("Radius", 1, Q("1 mm")))
sketch9.addConstraint(Sketcher.Constraint("DistanceY", 0, 2, 0, 1, Q("4.2 mm")))
sketch9.addConstraint(Sketcher.Constraint("DistanceY", 1, 3, -1, 1, Q("2.1 mm")))
sketch9.addConstraint(Sketcher.Constraint("DistanceX", 1, 3, -1, 1, Q("10.7998 mm")))
pocket6 = doc.addObject("PartDesign::Pocket", "Pocket005")
body.addObject(pocket6)
pocket6.Profile = sketch9
pocket6.Length = 0.4
pocket6.Reversed = True

sketch10 = doc.addObject("Sketcher::SketchObject", "Sketch009")
body.addObject(sketch10)
sketch10.AttachmentSupport = (doc.XZ_Plane, [""])
sketch10.MapMode = "FlatFace"
add_polygon(sketch10, [(-14.337665, 6.939028), (-14.337665, -5.904729), (-8.8998, -5.904729), (-8.8998, 6.939028)])
sketch10.addConstraint(Sketcher.Constraint("Vertical", 0))
sketch10.addConstraint(Sketcher.Constraint("Horizontal", 1))
sketch10.addConstraint(Sketcher.Constraint("Vertical", 2))
sketch10.addConstraint(Sketcher.Constraint("Horizontal", 3))
sketch10.addConstraint(Sketcher.Constraint("DistanceX", 1, 2, -1, 1, Q("8.8998 mm")))
sketch10.addConstraint(Sketcher.Constraint("DistanceX", 1, 1, 1, 2, Q("5.437865 mm")))
sketch10.addConstraint(Sketcher.Constraint("DistanceY", 0, 2, 0, 1, Q("12.843758 mm")))
sketch10.addConstraint(Sketcher.Constraint("DistanceY", 0, 2, -1, 1, Q("5.904729 mm")))
pocket7 = doc.addObject("PartDesign::Pocket", "Pocket006")
body.addObject(pocket7)
pocket7.Profile = sketch10
pocket7.Length = 2.2

sketch11 = doc.addObject("Sketcher::SketchObject", "Sketch010")
body.addObject(sketch11)
sketch11.AttachmentSupport = (doc.YZ_Plane, [""])
sketch11.MapMode = "FlatFace"
sketch11.AttachmentOffset = App.Placement(Vector(0, 0, -10.7998), App.Rotation())
add_polygon(sketch11, [(2.2, 2.1), (4.3, 2.1), (4.3, 2.9636), (4.03203, 2.69563), (2.60437, 2.69563), (2.2, 3.1)])
sketch11.addGeometry(Part.LineSegment(Vector(4.3, 2.1, 0), Vector(2.2, 2.1, 0)), True)
sketch11.addConstraint(Sketcher.Constraint("Horizontal", 0))
sketch11.addConstraint(Sketcher.Constraint("Vertical", 1))
sketch11.addConstraint(Sketcher.Constraint("Horizontal", 3))
sketch11.addConstraint(Sketcher.Constraint("Vertical", 5))
sketch11.addConstraint(Sketcher.Constraint("Horizontal", 6))
sketch11.addConstraint(Sketcher.Constraint("Coincident", 6, 1, 0, 2))
sketch11.addConstraint(Sketcher.Constraint("Perpendicular", 2, 4))
sketch11.addConstraint(Sketcher.Constraint("Vertical", 4, 2, 6, 2))
sketch11.addConstraint(Sketcher.Constraint("DistanceY", 5, 2, 5, 1, Q("1 mm")))
sketch11.addConstraint(Sketcher.Constraint("Angle", 2, Q("-135 deg")))
sketch11.addConstraint(Sketcher.Constraint("DistanceX", 0, 1, 0, 2, Q("2.1 mm")))
sketch11.addConstraint(Sketcher.Constraint("DistanceX", -1, 1, 0, 2, Q("4.3 mm")))
sketch11.addConstraint(Sketcher.Constraint("DistanceY", -1, 1, 0, 2, Q("2.1 mm")))
sketch11.addConstraint(Sketcher.Constraint("DistanceY", 1, 1, 1, 2, Q("0.8636 mm")))
sketch11.addConstraint(Sketcher.Constraint("DistanceX", 3, 2, 3, 1, Q("1.42766 mm")))
groove3 = doc.addObject("PartDesign::Groove", "Groove002")
body.addObject(groove3)
groove3.Profile = sketch11
groove3.ReferenceAxis = (sketch11, ["Axis0"])
groove3.Angle = 360
doc.recompute()

linearpattern = doc.addObject("PartDesign::LinearPattern", "LinearPattern")
body.addObject(linearpattern)
linearpattern.Originals = [groove3]
linearpattern.Direction = (doc.Z_Axis, [""])
linearpattern.Mode = "offset"
linearpattern.Offset = 4.2
linearpattern.Occurrences = 2
linearpattern.Reversed = True
body.Tip = linearpattern

sketch12 = doc.addObject("Sketcher::SketchObject", "Sketch011")
body.addObject(sketch12)
sketch12.AttachmentSupport = (doc.XZ_Plane, [""])
sketch12.MapMode = "FlatFace"
sketch12.addGeometry(Part.Circle(Vector(3.9042, -8.5, 0), Vector(0, 0, 1), 0.8255), False)
sketch12.addGeometry(Part.Circle(Vector(-2.9538, -8.5, 0), Vector(0, 0, 1), 0.8255), False)
sketch12.addConstraint(Sketcher.Constraint("Equal", 0, 1))
sketch12.addConstraint(Sketcher.Constraint("Horizontal", 0, 3, 1, 3))
sketch12.addConstraint(Sketcher.Constraint("Diameter", 0, Q("1.651 mm")))
sketch12.addConstraint(Sketcher.Constraint("DistanceY", 0, 3, -1, 1, Q("8.5 mm")))
sketch12.addConstraint(Sketcher.Constraint("DistanceX", 1, 3, 0, 3, Q("6.858 mm")))
sketch12.addConstraint(Sketcher.Constraint("DistanceX", -1, 1, 0, 3, Q("3.9042 mm")))
doc.recompute()
hole = doc.addObject("PartDesign::Hole", "Hole")
body.addObject(hole)
hole.Profile = sketch12
hole.ThreadType = "None"
hole.Diameter = 1.651
hole.DepthType = "ThroughAll"
hole.HoleCutType = "Counterbore"
hole.HoleCutDiameter = 3
hole.HoleCutDepth = 2

sketch13 = doc.addObject("Sketcher::SketchObject", "Sketch012")
body.addObject(sketch13)
sketch13.AttachmentSupport = (doc.YZ_Plane, [""])
sketch13.MapMode = "FlatFace"
sketch13.AttachmentOffset = App.Placement(Vector(0, 0, -6.6998), App.Rotation())
add_polygon(sketch13, [(0, -4.6), (4.7, -4.6), (4.7, -3.4), (4.09563, -4.00437), (0.40437, -4.00437), (0, -3.6)])
sketch13.addGeometry(Part.LineSegment(Vector(4.7, -4.6, 0), Vector(0, -4.6, 0)), True)
sketch13.addConstraint(Sketcher.Constraint("Horizontal", 0))
sketch13.addConstraint(Sketcher.Constraint("Vertical", 1))
sketch13.addConstraint(Sketcher.Constraint("Horizontal", 3))
sketch13.addConstraint(Sketcher.Constraint("Vertical", 5))
sketch13.addConstraint(Sketcher.Constraint("Horizontal", 6))
sketch13.addConstraint(Sketcher.Constraint("Coincident", 6, 1, 0, 2))
sketch13.addConstraint(Sketcher.Constraint("PointOnObject", 4, 2, -2))
sketch13.addConstraint(Sketcher.Constraint("PointOnObject", 6, 2, -2))
sketch13.addConstraint(Sketcher.Constraint("Perpendicular", 2, 4))
sketch13.addConstraint(Sketcher.Constraint("DistanceY", 5, 2, 5, 1, Q("1 mm")))
sketch13.addConstraint(Sketcher.Constraint("Angle", 2, Q("-135 deg")))
sketch13.addConstraint(Sketcher.Constraint("DistanceX", 0, 1, 0, 2, Q("4.7 mm")))
sketch13.addConstraint(Sketcher.Constraint("DistanceY", 1, 1, 1, 2, Q("1.2 mm")))
sketch13.addConstraint(Sketcher.Constraint("DistanceY", 0, 2, -1, 1, Q("4.6 mm")))
sketch13.addConstraint(Sketcher.Constraint("DistanceX", 3, 2, 3, 1, Q("3.69126 mm")))
groove4 = doc.addObject("PartDesign::Groove", "Groove003")
body.addObject(groove4)
groove4.Profile = sketch13
groove4.ReferenceAxis = (sketch13, ["Axis0"])
groove4.Angle = 360
doc.recompute()

linearpattern2 = doc.addObject("PartDesign::LinearPattern", "LinearPattern001")
body.addObject(linearpattern2)
linearpattern2.Originals = [groove4]
linearpattern2.Direction = (doc.Z_Axis, [""])
linearpattern2.Mode = "offset"
linearpattern2.Offset = 9.2
linearpattern2.Occurrences = 2
body.Tip = linearpattern2

sketch14 = doc.addObject("Sketcher::SketchObject", "Sketch013")
body.addObject(sketch14)
sketch14.AttachmentSupport = (doc.YZ_Plane, [""])
sketch14.MapMode = "FlatFace"
sketch14.AttachmentOffset = App.Placement(Vector(0, 0, 2.6002), App.Rotation())
add_polygon(sketch14, [(0, 4.6), (4.7, 4.6), (4.7, 5.8), (4.30645, 5.40645), (0.19355, 5.40645), (0, 5.6)])
sketch14.addGeometry(Part.LineSegment(Vector(4.7, 4.6, 0), Vector(0, 4.6, 0)), True)
sketch14.addConstraint(Sketcher.Constraint("Horizontal", 0))
sketch14.addConstraint(Sketcher.Constraint("Vertical", 1))
sketch14.addConstraint(Sketcher.Constraint("Horizontal", 3))
sketch14.addConstraint(Sketcher.Constraint("Vertical", 5))
sketch14.addConstraint(Sketcher.Constraint("Horizontal", 6))
sketch14.addConstraint(Sketcher.Constraint("Coincident", 6, 1, 0, 2))
sketch14.addConstraint(Sketcher.Constraint("PointOnObject", 4, 2, -2))
sketch14.addConstraint(Sketcher.Constraint("PointOnObject", 6, 2, -2))
sketch14.addConstraint(Sketcher.Constraint("Perpendicular", 2, 4))
sketch14.addConstraint(Sketcher.Constraint("DistanceY", 5, 2, 5, 1, Q("1 mm")))
sketch14.addConstraint(Sketcher.Constraint("Angle", 2, Q("-135 deg")))
sketch14.addConstraint(Sketcher.Constraint("DistanceX", 0, 1, 0, 2, Q("4.7 mm")))
sketch14.addConstraint(Sketcher.Constraint("DistanceY", 1, 1, 1, 2, Q("1.2 mm")))
sketch14.addConstraint(Sketcher.Constraint("DistanceY", -1, 1, 0, 2, Q("4.6 mm")))
sketch14.addConstraint(Sketcher.Constraint("DistanceX", 3, 2, 3, 1, Q("4.1129 mm")))
groove5 = doc.addObject("PartDesign::Groove", "Groove004")
body.addObject(groove5)
groove5.Profile = sketch14
groove5.ReferenceAxis = (sketch14, ["Axis0"])
groove5.Angle = 360
doc.recompute()

linearpattern3 = doc.addObject("PartDesign::LinearPattern", "LinearPattern002")
body.addObject(linearpattern3)
linearpattern3.Originals = [groove5]
linearpattern3.Direction = (doc.X_Axis, [""])
linearpattern3.Mode = "offset"
linearpattern3.Offset = 4.5
linearpattern3.Occurrences = 2
linearpattern3.Reversed = True
body.Tip = linearpattern3

sketch15 = doc.addObject("Sketcher::SketchObject", "Sketch014")
body.addObject(sketch15)
sketch15.AttachmentSupport = (doc.YZ_Plane, [""])
sketch15.MapMode = "FlatFace"
sketch15.AttachmentOffset = App.Placement(Vector(0, 0, 7.4002), App.Rotation())
add_polygon(sketch15, [(0, -8.7), (4.7, -8.7), (4.7, -7.5), (4.30645, -7.89355), (0.19355, -7.89355), (0, -7.7)])
sketch15.addGeometry(Part.LineSegment(Vector(4.7, -8.7, 0), Vector(0, -8.7, 0)), True)
sketch15.addConstraint(Sketcher.Constraint("Horizontal", 0))
sketch15.addConstraint(Sketcher.Constraint("Vertical", 1))
sketch15.addConstraint(Sketcher.Constraint("Horizontal", 3))
sketch15.addConstraint(Sketcher.Constraint("Vertical", 5))
sketch15.addConstraint(Sketcher.Constraint("Horizontal", 6))
sketch15.addConstraint(Sketcher.Constraint("Coincident", 6, 1, 0, 2))
sketch15.addConstraint(Sketcher.Constraint("PointOnObject", 4, 2, -2))
sketch15.addConstraint(Sketcher.Constraint("PointOnObject", 6, 2, -2))
sketch15.addConstraint(Sketcher.Constraint("Perpendicular", 2, 4))
sketch15.addConstraint(Sketcher.Constraint("DistanceY", 5, 2, 5, 1, Q("1 mm")))
sketch15.addConstraint(Sketcher.Constraint("Angle", 2, Q("-135 deg")))
sketch15.addConstraint(Sketcher.Constraint("DistanceX", 0, 1, 0, 2, Q("4.7 mm")))
sketch15.addConstraint(Sketcher.Constraint("DistanceY", 1, 1, 1, 2, Q("1.2 mm")))
sketch15.addConstraint(Sketcher.Constraint("DistanceY", 0, 2, -1, 1, Q("8.7 mm")))
sketch15.addConstraint(Sketcher.Constraint("DistanceX", 3, 2, 3, 1, Q("4.1129 mm")))
groove6 = doc.addObject("PartDesign::Groove", "Groove005")
body.addObject(groove6)
groove6.Profile = sketch15
groove6.ReferenceAxis = (sketch15, ["Axis0"])
groove6.Angle = 360
doc.recompute()

linearpattern4 = doc.addObject("PartDesign::LinearPattern", "LinearPattern003")
body.addObject(linearpattern4)
linearpattern4.Originals = [groove6]
linearpattern4.Direction = (doc.X_Axis, [""])
linearpattern4.Mode = "offset"
linearpattern4.Offset = 14.1
linearpattern4.Occurrences = 2
linearpattern4.Reversed = True
body.Tip = linearpattern4

sketch16 = doc.addObject("Sketcher::SketchObject", "Sketch015")
body.addObject(sketch16)
sketch16.AttachmentSupport = (doc.YZ_Plane, [""])
sketch16.MapMode = "FlatFace"
sketch16.AttachmentOffset = App.Placement(Vector(0, 0, 6.2002), App.Rotation())
add_polygon(sketch16, [(0, 2.2), (7.4, 2.2), (7.4, 3.1), (7.09563, 2.79563), (0.40437, 2.79563), (0, 3.2)])
sketch16.addGeometry(Part.LineSegment(Vector(7.4, 2.2, 0), Vector(0, 2.2, 0)), True)
sketch16.addConstraint(Sketcher.Constraint("Horizontal", 0))
sketch16.addConstraint(Sketcher.Constraint("Vertical", 1))
sketch16.addConstraint(Sketcher.Constraint("Horizontal", 3))
sketch16.addConstraint(Sketcher.Constraint("Vertical", 5))
sketch16.addConstraint(Sketcher.Constraint("Horizontal", 6))
sketch16.addConstraint(Sketcher.Constraint("Coincident", 6, 1, 0, 2))
sketch16.addConstraint(Sketcher.Constraint("PointOnObject", 4, 2, -2))
sketch16.addConstraint(Sketcher.Constraint("PointOnObject", 6, 2, -2))
sketch16.addConstraint(Sketcher.Constraint("Perpendicular", 2, 4))
sketch16.addConstraint(Sketcher.Constraint("DistanceY", 5, 2, 5, 1, Q("1 mm")))
sketch16.addConstraint(Sketcher.Constraint("Angle", 2, Q("-135 deg")))
sketch16.addConstraint(Sketcher.Constraint("DistanceX", 0, 1, 0, 2, Q("7.4 mm")))
sketch16.addConstraint(Sketcher.Constraint("DistanceY", 1, 1, 1, 2, Q("0.9 mm")))
sketch16.addConstraint(Sketcher.Constraint("DistanceY", -1, 1, 0, 2, Q("2.2 mm")))
sketch16.addConstraint(Sketcher.Constraint("DistanceX", 3, 2, 3, 1, Q("6.69126 mm")))
groove7 = doc.addObject("PartDesign::Groove", "Groove006")
body.addObject(groove7)
groove7.Profile = sketch16
groove7.ReferenceAxis = (sketch16, ["Axis0"])
groove7.Angle = 360
doc.recompute()

linearpattern5 = doc.addObject("PartDesign::LinearPattern", "LinearPattern004")
body.addObject(linearpattern5)
linearpattern5.Originals = [groove7]
linearpattern5.Direction = (doc.Z_Axis, [""])
linearpattern5.Mode = "offset"
linearpattern5.Offset = 4.4
linearpattern5.Occurrences = 2
linearpattern5.Reversed = True
body.Tip = linearpattern5

sketch17 = doc.addObject("Sketcher::SketchObject", "Sketch016")
body.addObject(sketch17)
sketch17.AttachmentSupport = (doc.YZ_Plane, [""])
sketch17.MapMode = "FlatFace"
sketch17.AttachmentOffset = App.Placement(Vector(0, 0, 9.6002), App.Rotation())
sketch17.addGeometry(Part.Circle(Vector(4.9, -4.7585, 0), Vector(0, 0, 1), 0.889), False)
sketch17.addGeometry(Part.Circle(Vector(4.9, 4.2585, 0), Vector(0, 0, 1), 0.889), False)
sketch17.addConstraint(Sketcher.Constraint("Equal", 0, 1))
sketch17.addConstraint(Sketcher.Constraint("Vertical", 0, 3, 1, 3))
sketch17.addConstraint(Sketcher.Constraint("Diameter", 0, Q("1.778 mm")))
sketch17.addConstraint(Sketcher.Constraint("DistanceX", -1, 1, 0, 3, Q("4.9 mm")))
sketch17.addConstraint(Sketcher.Constraint("DistanceY", 0, 3, 1, 3, Q("9.017 mm")))
sketch17.addConstraint(Sketcher.Constraint("DistanceY", 0, 3, -1, 1, Q("4.7585 mm")))
doc.recompute()
hole2 = doc.addObject("PartDesign::Hole", "Hole001")
body.addObject(hole2)
hole2.Profile = sketch17
hole2.ThreadType = "None"
hole2.Diameter = 1.778
hole2.DepthType = "Dimension"
hole2.Depth = 4
hole2.DrillPoint = "Angled"
hole2.DrillPointAngle = 118
hole2.HoleCutType = "Countersink"
hole2.HoleCutDiameter = 2.3368
hole2.HoleCutCountersinkAngle = 90

sketch18 = doc.addObject("Sketcher::SketchObject", "Sketch017")
body.addObject(sketch18)
sketch18.AttachmentSupport = (doc.YZ_Plane, [""])
sketch18.MapMode = "FlatFace"
sketch18.AttachmentOffset = App.Placement(Vector(0, 0, 9.6002), App.Rotation())
sketch18.addGeometry(Part.Circle(Vector(4.9, -4.7585, 0), Vector(0, 0, 1), 0.5), False)
sketch18.addGeometry(Part.Circle(Vector(4.9, 4.2585, 0), Vector(0, 0, 1), 0.5), False)
sketch18.addConstraint(Sketcher.Constraint("Equal", 0, 1))
sketch18.addConstraint(Sketcher.Constraint("Vertical", 0, 3, 1, 3))
sketch18.addConstraint(Sketcher.Constraint("Diameter", 0, Q("1 mm")))
sketch18.addConstraint(Sketcher.Constraint("DistanceX", -1, 1, 0, 3, Q("4.9 mm")))
sketch18.addConstraint(Sketcher.Constraint("DistanceY", 0, 3, 1, 3, Q("9.017 mm")))
sketch18.addConstraint(Sketcher.Constraint("DistanceY", 0, 3, -1, 1, Q("4.7585 mm")))
doc.recompute()
hole3 = doc.addObject("PartDesign::Hole", "Hole002")
body.addObject(hole3)
hole3.Profile = sketch18
hole3.ThreadType = "None"
hole3.Diameter = 1
hole3.DepthType = "Dimension"
hole3.Depth = 5.4
hole3.DrillPoint = "Angled"
hole3.DrillPointAngle = 118
doc.recompute()

fillet = doc.addObject("PartDesign::Fillet", "Fillet")
body.addObject(fillet)
fillet.Base = (hole3, edges_at(hole3, [(-12.7, 3.45, 4), (-12.7, 3.45, -4)]))
fillet.Radius = 0.4
doc.recompute()

fillet2 = doc.addObject("PartDesign::Fillet", "Fillet001")
body.addObject(fillet2)
fillet2.Base = (fillet, edges_at(fillet, [
    (-4.325, 6.05, -10.5),
    (5.276, 6.05, -10.5),
    (9.6, 3.7, -13),
    (-8.9, 2.35, 6.8),
    (9.6, 3.7, 6.8),
    (-8.9, 3.7, -13),
]))
fillet2.Radius = 0.4
doc.recompute()

fillet3 = doc.addObject("PartDesign::Fillet", "Fillet002")
body.addObject(fillet3)
fillet3.Base = (fillet2, edges_at(fillet2, [(-8.9, 3.45, -4), (-8.9, 3.45, 4)]))
fillet3.Radius = 2.2
doc.recompute()

chamfer = doc.addObject("PartDesign::Chamfer", "Chamfer")
body.addObject(chamfer)
chamfer.Base = (fillet3, edges_at(fillet3, [
    (0.35, 0, -13),
    (-8.9, 0, -3.1),
    (9.6, 0, -3.1),
    (0.35, 0, 6.8),
    (-8.783, 0, 6.683),
    (9.483, 0, 6.683),
    (9.483, 0, -12.883),
    (-8.783, 0, -12.883),
]))
chamfer.Size = 0.1
doc.recompute()

chamfer2 = doc.addObject("PartDesign::Chamfer", "Chamfer001")
body.addObject(chamfer2)
chamfer2.Base = (chamfer, edges_at(chamfer, [
    (-4.325, 6.05, -13),
    (5.276, 6.05, -13),
    (9.6, 6.05, -10.5),
    (9.6, 6.05, -6.8),
    (4.825, 6.05, 6.8),
    (-8.9, 6.05, -10.5),
]))
chamfer2.Size = 0.07

doc.recompute()
